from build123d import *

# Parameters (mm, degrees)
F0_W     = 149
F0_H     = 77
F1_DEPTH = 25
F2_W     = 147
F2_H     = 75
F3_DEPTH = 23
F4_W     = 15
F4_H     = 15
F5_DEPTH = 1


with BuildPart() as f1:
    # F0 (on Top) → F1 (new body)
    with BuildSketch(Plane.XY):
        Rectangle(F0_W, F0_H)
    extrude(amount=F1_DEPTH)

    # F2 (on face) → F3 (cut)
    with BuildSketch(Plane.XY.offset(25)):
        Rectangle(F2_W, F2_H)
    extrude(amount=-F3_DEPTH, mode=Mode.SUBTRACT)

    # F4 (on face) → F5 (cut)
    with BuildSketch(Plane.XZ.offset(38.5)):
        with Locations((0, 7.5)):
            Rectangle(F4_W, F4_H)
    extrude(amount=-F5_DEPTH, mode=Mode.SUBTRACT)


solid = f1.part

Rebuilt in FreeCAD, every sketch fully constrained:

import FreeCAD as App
import Part
import Sketcher

V = App.Vector
Q = App.Units.Quantity

doc = App.newDocument("Part")
body = doc.addObject("PartDesign::Body", "Body")

# Sketch on XY plane
sketch1 = doc.addObject("Sketcher::SketchObject", "Sketch")
body.addObject(sketch1)
sketch1.AttachmentSupport = (doc.XY_Plane, [""])
sketch1.MapMode = "FlatFace"
sketch1.addGeometry([
    Part.LineSegment(V(-74, 38, 0), V(-74, -38, 0)),
    Part.LineSegment(V(-74, -38, 0), V(74, -38, 0)),
    Part.LineSegment(V(74, -38, 0), V(74, 38, 0)),
    Part.LineSegment(V(74, 38, 0), V(-74, 38, 0)),
], False)
sketch1.addConstraint([
    Sketcher.Constraint("Coincident", 0, 2, 1, 1),
    Sketcher.Constraint("Coincident", 1, 2, 2, 1),
    Sketcher.Constraint("Coincident", 2, 2, 3, 1),
    Sketcher.Constraint("Coincident", 3, 2, 0, 1),
    Sketcher.Constraint("Vertical", 0),
    Sketcher.Constraint("Horizontal", 1),
    Sketcher.Constraint("Vertical", 2),
    Sketcher.Constraint("Horizontal", 3),
    Sketcher.Constraint("Symmetric", 0, 2, 2, 2, -1, 1),
    Sketcher.Constraint("DistanceX", 1, 1, 1, 2, Q("149 mm")),
    Sketcher.Constraint("DistanceY", 0, 2, 0, 1, Q("77 mm")),
])
pad1 = doc.addObject("PartDesign::Pad", "Pad")
body.addObject(pad1)
pad1.Profile = sketch1
pad1.Length = 25

# Sketch on XY plane
sketch2 = doc.addObject("Sketcher::SketchObject", "Sketch001")
body.addObject(sketch2)
sketch2.AttachmentSupport = (doc.XY_Plane, [""])
sketch2.MapMode = "FlatFace"
sketch2.AttachmentOffset = App.Placement(V(0, 0, 25), App.Rotation())
sketch2.addGeometry([
    Part.LineSegment(V(-74, 38, 0), V(-74, -38, 0)),
    Part.LineSegment(V(-74, -38, 0), V(74, -38, 0)),
    Part.LineSegment(V(74, -38, 0), V(74, 38, 0)),
    Part.LineSegment(V(74, 38, 0), V(-74, 38, 0)),
], False)
sketch2.addConstraint([
    Sketcher.Constraint("Coincident", 0, 2, 1, 1),
    Sketcher.Constraint("Coincident", 1, 2, 2, 1),
    Sketcher.Constraint("Coincident", 2, 2, 3, 1),
    Sketcher.Constraint("Coincident", 3, 2, 0, 1),
    Sketcher.Constraint("Vertical", 0),
    Sketcher.Constraint("Horizontal", 1),
    Sketcher.Constraint("Vertical", 2),
    Sketcher.Constraint("Horizontal", 3),
    Sketcher.Constraint("Symmetric", 0, 2, 2, 2, -1, 1),
    Sketcher.Constraint("DistanceX", 1, 1, 1, 2, Q("147 mm")),
    Sketcher.Constraint("DistanceY", 0, 2, 0, 1, Q("75 mm")),
])
pocket1 = doc.addObject("PartDesign::Pocket", "Pocket")
body.addObject(pocket1)
pocket1.Profile = sketch2
pocket1.Length = 23

# Sketch on XZ plane
sketch3 = doc.addObject("Sketcher::SketchObject", "Sketch002")
body.addObject(sketch3)
sketch3.AttachmentSupport = (doc.XZ_Plane, [""])
sketch3.MapMode = "FlatFace"
sketch3.AttachmentOffset = App.Placement(V(0, 0, 38.5), App.Rotation())
sketch3.addGeometry([
    Part.LineSegment(V(-8, 15, 0), V(-8, 0, 0)),
    Part.LineSegment(V(-8, 0, 0), V(8, 0, 0)),
    Part.LineSegment(V(8, 0, 0), V(8, 15, 0)),
    Part.LineSegment(V(8, 15, 0), V(-8, 15, 0)),
], False)
sketch3.addConstraint([
    Sketcher.Constraint("Coincident", 0, 2, 1, 1),
    Sketcher.Constraint("Coincident", 1, 2, 2, 1),
    Sketcher.Constraint("Coincident", 2, 2, 3, 1),
    Sketcher.Constraint("Coincident", 3, 2, 0, 1),
    Sketcher.Constraint("Vertical", 0),
    Sketcher.Constraint("Horizontal", 1),
    Sketcher.Constraint("Vertical", 2),
    Sketcher.Constraint("Horizontal", 3),
    Sketcher.Constraint("Symmetric", 0, 2, 1, 2, -1, 1),
    Sketcher.Constraint("Equal", 3, 0),
    Sketcher.Constraint("DistanceX", 1, 1, 1, 2, Q("15 mm")),
])
pocket2 = doc.addObject("PartDesign::Pocket", "Pocket001")
body.addObject(pocket2)
pocket2.Profile = sketch3
pocket2.Length = 1

doc.recompute()
